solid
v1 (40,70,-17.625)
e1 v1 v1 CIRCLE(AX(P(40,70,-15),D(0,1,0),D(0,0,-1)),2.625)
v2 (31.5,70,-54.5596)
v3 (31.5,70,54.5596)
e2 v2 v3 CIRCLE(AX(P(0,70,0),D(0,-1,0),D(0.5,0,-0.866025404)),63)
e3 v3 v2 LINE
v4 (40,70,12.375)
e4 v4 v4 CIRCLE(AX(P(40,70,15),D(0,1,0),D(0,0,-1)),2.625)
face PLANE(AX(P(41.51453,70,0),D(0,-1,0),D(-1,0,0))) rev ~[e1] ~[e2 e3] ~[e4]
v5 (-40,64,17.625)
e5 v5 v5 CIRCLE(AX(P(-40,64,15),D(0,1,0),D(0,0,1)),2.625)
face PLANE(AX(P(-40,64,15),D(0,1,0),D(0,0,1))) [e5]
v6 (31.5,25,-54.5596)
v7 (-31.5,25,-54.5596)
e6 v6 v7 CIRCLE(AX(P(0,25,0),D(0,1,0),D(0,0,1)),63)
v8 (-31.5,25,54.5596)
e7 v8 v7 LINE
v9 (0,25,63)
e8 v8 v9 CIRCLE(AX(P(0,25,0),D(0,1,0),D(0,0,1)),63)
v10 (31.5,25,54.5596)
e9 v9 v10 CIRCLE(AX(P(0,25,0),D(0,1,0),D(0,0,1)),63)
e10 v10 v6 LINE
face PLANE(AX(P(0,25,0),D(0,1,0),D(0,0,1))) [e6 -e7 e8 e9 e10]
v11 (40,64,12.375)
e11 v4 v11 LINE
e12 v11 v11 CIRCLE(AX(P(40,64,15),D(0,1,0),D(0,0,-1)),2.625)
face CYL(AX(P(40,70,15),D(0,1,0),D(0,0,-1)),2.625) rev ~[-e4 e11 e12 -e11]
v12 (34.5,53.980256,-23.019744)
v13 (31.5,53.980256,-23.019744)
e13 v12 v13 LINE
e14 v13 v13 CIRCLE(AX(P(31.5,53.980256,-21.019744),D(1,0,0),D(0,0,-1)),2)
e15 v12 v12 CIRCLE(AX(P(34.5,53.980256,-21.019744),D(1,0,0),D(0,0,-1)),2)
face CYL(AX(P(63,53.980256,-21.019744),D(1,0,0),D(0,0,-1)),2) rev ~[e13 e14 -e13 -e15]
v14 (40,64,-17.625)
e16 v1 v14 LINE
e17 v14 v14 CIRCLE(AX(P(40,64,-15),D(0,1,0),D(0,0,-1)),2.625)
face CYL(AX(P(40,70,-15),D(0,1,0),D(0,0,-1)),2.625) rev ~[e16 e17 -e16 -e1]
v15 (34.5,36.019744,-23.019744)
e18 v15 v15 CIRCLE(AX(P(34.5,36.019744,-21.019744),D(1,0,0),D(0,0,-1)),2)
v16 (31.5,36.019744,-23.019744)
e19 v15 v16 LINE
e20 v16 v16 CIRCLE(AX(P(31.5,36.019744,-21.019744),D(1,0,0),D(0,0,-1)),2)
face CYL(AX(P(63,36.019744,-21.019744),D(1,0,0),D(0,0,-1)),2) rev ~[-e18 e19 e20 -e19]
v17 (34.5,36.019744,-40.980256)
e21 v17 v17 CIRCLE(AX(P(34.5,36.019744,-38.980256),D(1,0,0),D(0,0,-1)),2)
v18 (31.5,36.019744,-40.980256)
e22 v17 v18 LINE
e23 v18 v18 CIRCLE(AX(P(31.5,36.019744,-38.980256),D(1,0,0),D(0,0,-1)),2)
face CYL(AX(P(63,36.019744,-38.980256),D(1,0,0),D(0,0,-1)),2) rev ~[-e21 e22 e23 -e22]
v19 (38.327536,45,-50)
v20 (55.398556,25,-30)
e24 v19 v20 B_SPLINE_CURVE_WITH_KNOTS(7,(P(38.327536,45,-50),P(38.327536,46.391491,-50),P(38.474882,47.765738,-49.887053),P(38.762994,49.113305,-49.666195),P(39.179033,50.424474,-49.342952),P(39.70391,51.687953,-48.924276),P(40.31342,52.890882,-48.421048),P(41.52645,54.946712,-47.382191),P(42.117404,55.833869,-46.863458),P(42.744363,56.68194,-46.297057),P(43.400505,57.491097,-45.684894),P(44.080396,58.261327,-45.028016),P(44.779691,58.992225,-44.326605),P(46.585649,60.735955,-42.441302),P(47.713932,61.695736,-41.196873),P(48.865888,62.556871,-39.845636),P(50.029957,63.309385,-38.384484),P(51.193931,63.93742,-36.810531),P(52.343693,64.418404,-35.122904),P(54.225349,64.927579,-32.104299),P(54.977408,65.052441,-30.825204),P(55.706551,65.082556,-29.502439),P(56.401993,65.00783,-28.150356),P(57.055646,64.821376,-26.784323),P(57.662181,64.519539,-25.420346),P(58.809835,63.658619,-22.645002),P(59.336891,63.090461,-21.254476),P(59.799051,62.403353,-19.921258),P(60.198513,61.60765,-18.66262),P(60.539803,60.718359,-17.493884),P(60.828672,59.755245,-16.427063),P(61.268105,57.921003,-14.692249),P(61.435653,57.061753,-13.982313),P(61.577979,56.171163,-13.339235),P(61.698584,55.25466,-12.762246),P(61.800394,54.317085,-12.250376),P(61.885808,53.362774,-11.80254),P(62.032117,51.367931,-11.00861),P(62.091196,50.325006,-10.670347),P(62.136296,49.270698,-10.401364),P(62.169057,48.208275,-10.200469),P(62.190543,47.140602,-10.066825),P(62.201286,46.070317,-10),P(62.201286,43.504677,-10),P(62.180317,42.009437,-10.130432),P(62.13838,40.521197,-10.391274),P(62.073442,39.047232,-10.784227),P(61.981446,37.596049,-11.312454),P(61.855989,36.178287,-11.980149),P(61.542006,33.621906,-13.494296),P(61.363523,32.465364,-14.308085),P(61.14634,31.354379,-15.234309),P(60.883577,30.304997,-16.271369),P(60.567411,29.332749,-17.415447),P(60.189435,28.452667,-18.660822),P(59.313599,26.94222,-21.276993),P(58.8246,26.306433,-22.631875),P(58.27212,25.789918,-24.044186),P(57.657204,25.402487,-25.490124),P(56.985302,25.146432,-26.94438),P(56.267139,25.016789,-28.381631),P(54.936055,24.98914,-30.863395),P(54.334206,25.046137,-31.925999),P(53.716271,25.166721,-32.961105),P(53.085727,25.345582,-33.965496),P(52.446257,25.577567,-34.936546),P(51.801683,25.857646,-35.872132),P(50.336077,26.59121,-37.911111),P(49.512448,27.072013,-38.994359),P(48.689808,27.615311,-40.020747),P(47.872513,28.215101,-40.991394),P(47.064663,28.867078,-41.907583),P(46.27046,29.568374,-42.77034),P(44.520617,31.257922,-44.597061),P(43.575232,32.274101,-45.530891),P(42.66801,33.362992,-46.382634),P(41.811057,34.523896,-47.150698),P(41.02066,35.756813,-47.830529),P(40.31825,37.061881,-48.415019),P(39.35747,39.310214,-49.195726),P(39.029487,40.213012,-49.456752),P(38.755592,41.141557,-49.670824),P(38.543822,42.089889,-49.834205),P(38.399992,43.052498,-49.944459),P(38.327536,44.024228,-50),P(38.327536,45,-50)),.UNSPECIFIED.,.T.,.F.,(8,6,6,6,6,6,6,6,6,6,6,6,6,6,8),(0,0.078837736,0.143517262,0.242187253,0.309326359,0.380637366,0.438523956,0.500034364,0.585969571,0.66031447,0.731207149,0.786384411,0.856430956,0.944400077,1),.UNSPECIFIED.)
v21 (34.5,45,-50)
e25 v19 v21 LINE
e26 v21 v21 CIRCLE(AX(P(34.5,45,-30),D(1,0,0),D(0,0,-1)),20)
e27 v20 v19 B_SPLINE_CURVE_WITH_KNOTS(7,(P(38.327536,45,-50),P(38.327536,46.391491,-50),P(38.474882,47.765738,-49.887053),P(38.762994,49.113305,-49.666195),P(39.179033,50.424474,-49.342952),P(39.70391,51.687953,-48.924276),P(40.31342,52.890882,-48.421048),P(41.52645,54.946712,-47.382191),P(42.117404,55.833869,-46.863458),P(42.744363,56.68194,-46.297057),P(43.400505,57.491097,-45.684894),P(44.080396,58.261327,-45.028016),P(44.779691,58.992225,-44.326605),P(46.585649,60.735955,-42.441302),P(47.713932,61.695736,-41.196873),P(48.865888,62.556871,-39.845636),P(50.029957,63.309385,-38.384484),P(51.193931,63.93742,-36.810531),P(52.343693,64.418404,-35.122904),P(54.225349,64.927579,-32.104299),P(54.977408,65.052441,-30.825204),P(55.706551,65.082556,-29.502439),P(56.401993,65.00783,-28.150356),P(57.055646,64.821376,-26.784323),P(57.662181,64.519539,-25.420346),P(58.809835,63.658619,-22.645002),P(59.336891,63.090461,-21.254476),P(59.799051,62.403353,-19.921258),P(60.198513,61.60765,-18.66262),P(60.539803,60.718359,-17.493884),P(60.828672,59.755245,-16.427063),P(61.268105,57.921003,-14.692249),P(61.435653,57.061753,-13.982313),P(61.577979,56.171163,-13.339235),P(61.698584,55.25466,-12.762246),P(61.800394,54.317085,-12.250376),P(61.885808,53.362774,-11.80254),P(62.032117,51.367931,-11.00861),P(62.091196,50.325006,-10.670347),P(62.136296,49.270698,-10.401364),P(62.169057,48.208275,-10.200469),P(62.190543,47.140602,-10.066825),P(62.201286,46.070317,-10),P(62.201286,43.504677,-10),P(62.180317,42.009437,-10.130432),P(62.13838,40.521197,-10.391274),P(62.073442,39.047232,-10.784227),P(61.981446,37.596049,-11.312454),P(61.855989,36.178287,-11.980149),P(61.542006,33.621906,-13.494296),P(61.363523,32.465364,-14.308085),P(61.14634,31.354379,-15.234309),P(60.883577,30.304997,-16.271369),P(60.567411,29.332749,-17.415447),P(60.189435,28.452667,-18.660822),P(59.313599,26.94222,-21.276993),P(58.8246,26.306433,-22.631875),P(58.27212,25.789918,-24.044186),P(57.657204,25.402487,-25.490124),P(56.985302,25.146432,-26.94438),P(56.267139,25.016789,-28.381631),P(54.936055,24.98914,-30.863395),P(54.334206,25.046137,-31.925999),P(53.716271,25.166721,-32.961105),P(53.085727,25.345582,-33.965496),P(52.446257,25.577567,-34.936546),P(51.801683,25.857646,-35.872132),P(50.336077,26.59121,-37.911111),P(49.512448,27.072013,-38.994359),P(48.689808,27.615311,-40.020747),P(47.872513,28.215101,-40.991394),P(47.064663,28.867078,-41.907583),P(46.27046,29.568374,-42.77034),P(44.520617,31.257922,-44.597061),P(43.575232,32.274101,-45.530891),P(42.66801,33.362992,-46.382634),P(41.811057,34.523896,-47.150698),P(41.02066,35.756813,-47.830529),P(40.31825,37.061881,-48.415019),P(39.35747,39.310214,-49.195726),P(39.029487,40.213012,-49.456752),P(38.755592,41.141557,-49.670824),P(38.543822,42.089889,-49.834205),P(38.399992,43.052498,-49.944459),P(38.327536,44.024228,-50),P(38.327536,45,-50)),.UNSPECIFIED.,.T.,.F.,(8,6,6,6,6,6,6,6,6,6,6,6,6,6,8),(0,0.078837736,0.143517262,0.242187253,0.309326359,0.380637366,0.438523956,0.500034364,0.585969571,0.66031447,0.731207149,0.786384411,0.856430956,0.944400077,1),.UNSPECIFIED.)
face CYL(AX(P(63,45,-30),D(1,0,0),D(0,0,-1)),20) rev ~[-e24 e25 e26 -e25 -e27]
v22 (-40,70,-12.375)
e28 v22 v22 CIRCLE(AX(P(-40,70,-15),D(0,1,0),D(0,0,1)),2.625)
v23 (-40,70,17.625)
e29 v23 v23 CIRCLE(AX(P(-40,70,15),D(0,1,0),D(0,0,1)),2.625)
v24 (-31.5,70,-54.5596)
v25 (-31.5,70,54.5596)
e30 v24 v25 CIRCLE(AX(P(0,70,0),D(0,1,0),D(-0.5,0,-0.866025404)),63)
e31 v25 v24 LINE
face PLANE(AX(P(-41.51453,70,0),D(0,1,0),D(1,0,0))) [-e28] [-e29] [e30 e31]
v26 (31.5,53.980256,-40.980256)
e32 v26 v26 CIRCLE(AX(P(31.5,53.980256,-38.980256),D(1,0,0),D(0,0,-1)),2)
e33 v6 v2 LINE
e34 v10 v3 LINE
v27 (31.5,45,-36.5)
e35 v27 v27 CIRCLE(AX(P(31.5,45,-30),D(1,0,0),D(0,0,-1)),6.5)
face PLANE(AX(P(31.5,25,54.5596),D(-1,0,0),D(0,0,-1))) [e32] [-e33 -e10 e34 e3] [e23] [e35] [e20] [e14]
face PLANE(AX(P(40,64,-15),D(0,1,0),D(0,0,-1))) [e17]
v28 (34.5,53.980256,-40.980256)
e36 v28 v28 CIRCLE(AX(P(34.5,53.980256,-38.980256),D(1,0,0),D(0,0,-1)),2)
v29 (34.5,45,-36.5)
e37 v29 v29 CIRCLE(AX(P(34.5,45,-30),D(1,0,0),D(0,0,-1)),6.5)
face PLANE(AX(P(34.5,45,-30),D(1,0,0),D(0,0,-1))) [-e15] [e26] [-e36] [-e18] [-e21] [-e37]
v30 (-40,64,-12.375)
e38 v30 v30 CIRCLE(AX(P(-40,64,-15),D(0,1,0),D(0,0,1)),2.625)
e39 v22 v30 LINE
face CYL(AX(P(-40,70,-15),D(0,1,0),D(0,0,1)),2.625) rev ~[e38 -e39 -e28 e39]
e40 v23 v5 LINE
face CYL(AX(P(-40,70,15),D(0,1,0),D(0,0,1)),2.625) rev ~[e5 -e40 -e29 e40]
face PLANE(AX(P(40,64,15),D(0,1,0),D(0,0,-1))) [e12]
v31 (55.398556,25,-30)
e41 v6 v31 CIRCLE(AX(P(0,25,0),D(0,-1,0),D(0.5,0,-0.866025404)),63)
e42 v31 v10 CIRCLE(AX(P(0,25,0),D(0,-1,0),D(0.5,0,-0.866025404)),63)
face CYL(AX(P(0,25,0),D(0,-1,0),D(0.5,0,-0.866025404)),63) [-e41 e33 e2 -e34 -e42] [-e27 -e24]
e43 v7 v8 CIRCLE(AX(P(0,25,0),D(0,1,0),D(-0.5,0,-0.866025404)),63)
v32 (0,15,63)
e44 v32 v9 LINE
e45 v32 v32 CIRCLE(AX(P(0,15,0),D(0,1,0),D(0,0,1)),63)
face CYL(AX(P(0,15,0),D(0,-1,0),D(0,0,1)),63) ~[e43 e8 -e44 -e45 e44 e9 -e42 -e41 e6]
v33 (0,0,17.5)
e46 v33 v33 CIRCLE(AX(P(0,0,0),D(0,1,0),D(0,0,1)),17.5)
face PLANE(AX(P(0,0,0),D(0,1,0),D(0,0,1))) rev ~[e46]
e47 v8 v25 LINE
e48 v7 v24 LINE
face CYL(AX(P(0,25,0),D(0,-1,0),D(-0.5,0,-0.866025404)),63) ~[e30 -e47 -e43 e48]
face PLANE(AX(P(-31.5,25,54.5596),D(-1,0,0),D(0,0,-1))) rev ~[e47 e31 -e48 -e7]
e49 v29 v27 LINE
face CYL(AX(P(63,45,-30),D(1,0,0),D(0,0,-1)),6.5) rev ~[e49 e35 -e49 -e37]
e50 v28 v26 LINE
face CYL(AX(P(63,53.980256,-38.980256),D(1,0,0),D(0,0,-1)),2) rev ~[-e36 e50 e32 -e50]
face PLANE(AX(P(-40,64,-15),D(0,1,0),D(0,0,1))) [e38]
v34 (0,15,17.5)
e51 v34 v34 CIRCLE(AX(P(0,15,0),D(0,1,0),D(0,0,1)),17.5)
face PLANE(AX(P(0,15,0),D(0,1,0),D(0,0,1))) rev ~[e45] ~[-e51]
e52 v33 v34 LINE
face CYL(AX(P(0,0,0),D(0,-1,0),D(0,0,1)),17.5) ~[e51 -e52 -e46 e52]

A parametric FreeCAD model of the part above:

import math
import FreeCAD as App
import Part
import Sketcher

doc = App.newDocument("Part")
body = doc.addObject("PartDesign::Body", "Body")

# Sketch on XZ plane
sketch1 = body.newObject("Sketcher::SketchObject", "Sketch")
sketch1.AttachmentSupport = (doc.getObject("XZ_Plane"), [""])
sketch1.MapMode = "FlatFace"
sketch1.addGeometry(Part.Circle(App.Vector(0, 0, 0), App.Vector(0, 0, 1), 18), False)
sketch1.addConstraint([
    Sketcher.Constraint("Coincident", 0, 3, -1, 1),
    Sketcher.Constraint("Diameter", 0, 35.0),
])
pad1 = body.newObject("PartDesign::Pad", "Pad")
pad1.Profile = sketch1
pad1.Length = 15
pad1.Reversed = True

# Sketch on XZ plane
sketch2 = body.newObject("Sketcher::SketchObject", "Sketch001")
sketch2.AttachmentSupport = (doc.getObject("XZ_Plane"), [""])
sketch2.MapMode = "FlatFace"
sketch2.AttachmentOffset = App.Placement(App.Vector(0, 0, -15), App.Rotation())
sketch2.addGeometry(Part.Circle(App.Vector(0, 0, 0), App.Vector(0, 0, 1), 63), False)
sketch2.addConstraint([
    Sketcher.Constraint("Coincident", 0, 3, -1, 1),
    Sketcher.Constraint("Diameter", 0, 126.0),
])
pad2 = body.newObject("PartDesign::Pad", "Pad001")
pad2.Profile = sketch2
pad2.Length = 10
pad2.Reversed = True

# Sketch on XZ plane
sketch3 = body.newObject("Sketcher::SketchObject", "Sketch002")
sketch3.AttachmentSupport = (doc.getObject("XZ_Plane"), [""])
sketch3.MapMode = "FlatFace"
sketch3.AttachmentOffset = App.Placement(App.Vector(0, 0, -25), App.Rotation())
sketch3.addGeometry([
    Part.ArcOfCircle(Part.Circle(App.Vector(0, 0, 0), App.Vector(0, 0, 1), 63), math.radians(120), math.radians(240)),
    Part.LineSegment(App.Vector(-32, 55, 0), App.Vector(-32, -55, 0)),
    Part.ArcOfCircle(Part.Circle(App.Vector(0, 0, 0), App.Vector(0, 0, 1), 63), math.radians(-60), math.radians(60)),
    Part.LineSegment(App.Vector(32, -55, 0), App.Vector(32, 55, 0)),
], False)
sketch3.addConstraint([
    Sketcher.Constraint("Coincident", 0, 1, 1, 1),
    Sketcher.Constraint("Coincident", 1, 2, 0, 2),
    Sketcher.Constraint("Coincident", 2, 1, 3, 1),
    Sketcher.Constraint("Coincident", 3, 2, 2, 2),
    Sketcher.Constraint("Vertical", 1),
    Sketcher.Constraint("Vertical", 3),
    Sketcher.Constraint("Coincident", 0, 3, -1, 1),
    Sketcher.Constraint("Coincident", 2, 3, -1, 1),
    Sketcher.Constraint("Equal", 0, 2),
    Sketcher.Constraint("Horizontal", 1, 2, 2, 1),
    Sketcher.Constraint("Radius", 0, 63.0),
    Sketcher.Constraint("DistanceX", 1, 2, 2, 1, 63.0),
])
pad3 = body.newObject("PartDesign::Pad", "Pad002")
pad3.Profile = sketch3
pad3.Length = 45
pad3.Reversed = True

# Sketch on XZ plane
sketch4 = body.newObject("Sketcher::SketchObject", "Sketch003")
sketch4.AttachmentSupport = (doc.getObject("XZ_Plane"), [""])
sketch4.MapMode = "FlatFace"
sketch4.AttachmentOffset = App.Placement(App.Vector(0, 0, -70), App.Rotation())
sketch4.addGeometry([
    Part.Circle(App.Vector(-40, -15, 0), App.Vector(0, 0, 1), 2.6),
    Part.Circle(App.Vector(-40, 15, 0), App.Vector(0, 0, 1), 2.6),
    Part.Circle(App.Vector(40, 15, 0), App.Vector(0, 0, 1), 2.6),
    Part.Circle(App.Vector(40, -15, 0), App.Vector(0, 0, 1), 2.6),
], False)
sketch4.addConstraint([
    Sketcher.Constraint("Equal", 0, 1),
    Sketcher.Constraint("Equal", 1, 2),
    Sketcher.Constraint("Equal", 2, 3),
    Sketcher.Constraint("Symmetric", 0, 3, 2, 3, -1, 1),
    Sketcher.Constraint("Symmetric", 1, 3, 3, 3, -1, 1),
    Sketcher.Constraint("Symmetric", 1, 3, 2, 3, -2),
    Sketcher.Constraint("Diameter", 0, 5.25),
    Sketcher.Constraint("DistanceX", 0, 3, -1, 1, 40.0),
    Sketcher.Constraint("DistanceY", 0, 3, -1, 1, 15.0),
])
pocket1 = body.newObject("PartDesign::Pocket", "Pocket")
pocket1.Profile = sketch4
pocket1.Length = 6
pocket1.Reversed = True

# Sketch on YZ plane
sketch5 = body.newObject("Sketcher::SketchObject", "Sketch004")
sketch5.AttachmentSupport = (doc.getObject("YZ_Plane"), [""])
sketch5.MapMode = "FlatFace"
sketch5.AttachmentOffset = App.Placement(App.Vector(0, 0, 63), App.Rotation())
sketch5.addGeometry(Part.Circle(App.Vector(45, -30, 0), App.Vector(0, 0, 1), 20), False)
sketch5.addConstraint([
    Sketcher.Constraint("Diameter", 0, 40.0),
    Sketcher.Constraint("DistanceX", -1, 1, 0, 3, 45.0),
    Sketcher.Constraint("DistanceY", 0, 3, -1, 1, 30.0),
])
pocket2 = body.newObject("PartDesign::Pocket", "Pocket001")
pocket2.Profile = sketch5
pocket2.Length = 28.5

# Sketch on YZ plane
sketch6 = body.newObject("Sketcher::SketchObject", "Sketch005")
sketch6.AttachmentSupport = (doc.getObject("YZ_Plane"), [""])
sketch6.MapMode = "FlatFace"
sketch6.AttachmentOffset = App.Placement(App.Vector(0, 0, 63), App.Rotation())
sketch6.addGeometry([
    Part.Circle(App.Vector(36, -21, 0), App.Vector(0, 0, 1), 2),  # 0
    Part.Circle(App.Vector(54, -21, 0), App.Vector(0, 0, 1), 2),  # 1
    Part.Circle(App.Vector(54, -39, 0), App.Vector(0, 0, 1), 2),  # 2
    Part.Circle(App.Vector(36, -39, 0), App.Vector(0, 0, 1), 2),  # 3
    Part.Circle(App.Vector(45, -30, 0), App.Vector(0, 0, 1), 6.5),  # 4
], False)
sketch6.addConstraint([
    Sketcher.Constraint("Equal", 0, 1),
    Sketcher.Constraint("Equal", 1, 2),
    Sketcher.Constraint("Equal", 2, 3),
    Sketcher.Constraint("Horizontal", 0, 3, 1, 3),
    Sketcher.Constraint("Horizontal", 2, 3, 3, 3),
    Sketcher.Constraint("Vertical", 1, 3, 2, 3),
    Sketcher.Constraint("Vertical", 0, 3, 3, 3),
    Sketcher.Constraint("Diameter", 0, 4.0),
    Sketcher.Constraint("Diameter", 4, 13.0),
    Sketcher.Constraint("DistanceX", -1, 1, 4, 3, 45.0),
    Sketcher.Constraint("DistanceY", 4, 3, -1, 1, 30.0),
    Sketcher.Constraint("DistanceX", -1, 1, 0, 3, 36.019744),
    Sketcher.Constraint("DistanceY", 0, 3, -1, 1, 21.019744),
    Sketcher.Constraint("DistanceX", -1, 1, 1, 3, 53.980256),
    Sketcher.Constraint("DistanceY", 2, 3, -1, 1, 38.980256),
])
pocket3 = body.newObject("PartDesign::Pocket", "Pocket002")
pocket3.Profile = sketch6
pocket3.Length = 31.5

doc.recompute()
